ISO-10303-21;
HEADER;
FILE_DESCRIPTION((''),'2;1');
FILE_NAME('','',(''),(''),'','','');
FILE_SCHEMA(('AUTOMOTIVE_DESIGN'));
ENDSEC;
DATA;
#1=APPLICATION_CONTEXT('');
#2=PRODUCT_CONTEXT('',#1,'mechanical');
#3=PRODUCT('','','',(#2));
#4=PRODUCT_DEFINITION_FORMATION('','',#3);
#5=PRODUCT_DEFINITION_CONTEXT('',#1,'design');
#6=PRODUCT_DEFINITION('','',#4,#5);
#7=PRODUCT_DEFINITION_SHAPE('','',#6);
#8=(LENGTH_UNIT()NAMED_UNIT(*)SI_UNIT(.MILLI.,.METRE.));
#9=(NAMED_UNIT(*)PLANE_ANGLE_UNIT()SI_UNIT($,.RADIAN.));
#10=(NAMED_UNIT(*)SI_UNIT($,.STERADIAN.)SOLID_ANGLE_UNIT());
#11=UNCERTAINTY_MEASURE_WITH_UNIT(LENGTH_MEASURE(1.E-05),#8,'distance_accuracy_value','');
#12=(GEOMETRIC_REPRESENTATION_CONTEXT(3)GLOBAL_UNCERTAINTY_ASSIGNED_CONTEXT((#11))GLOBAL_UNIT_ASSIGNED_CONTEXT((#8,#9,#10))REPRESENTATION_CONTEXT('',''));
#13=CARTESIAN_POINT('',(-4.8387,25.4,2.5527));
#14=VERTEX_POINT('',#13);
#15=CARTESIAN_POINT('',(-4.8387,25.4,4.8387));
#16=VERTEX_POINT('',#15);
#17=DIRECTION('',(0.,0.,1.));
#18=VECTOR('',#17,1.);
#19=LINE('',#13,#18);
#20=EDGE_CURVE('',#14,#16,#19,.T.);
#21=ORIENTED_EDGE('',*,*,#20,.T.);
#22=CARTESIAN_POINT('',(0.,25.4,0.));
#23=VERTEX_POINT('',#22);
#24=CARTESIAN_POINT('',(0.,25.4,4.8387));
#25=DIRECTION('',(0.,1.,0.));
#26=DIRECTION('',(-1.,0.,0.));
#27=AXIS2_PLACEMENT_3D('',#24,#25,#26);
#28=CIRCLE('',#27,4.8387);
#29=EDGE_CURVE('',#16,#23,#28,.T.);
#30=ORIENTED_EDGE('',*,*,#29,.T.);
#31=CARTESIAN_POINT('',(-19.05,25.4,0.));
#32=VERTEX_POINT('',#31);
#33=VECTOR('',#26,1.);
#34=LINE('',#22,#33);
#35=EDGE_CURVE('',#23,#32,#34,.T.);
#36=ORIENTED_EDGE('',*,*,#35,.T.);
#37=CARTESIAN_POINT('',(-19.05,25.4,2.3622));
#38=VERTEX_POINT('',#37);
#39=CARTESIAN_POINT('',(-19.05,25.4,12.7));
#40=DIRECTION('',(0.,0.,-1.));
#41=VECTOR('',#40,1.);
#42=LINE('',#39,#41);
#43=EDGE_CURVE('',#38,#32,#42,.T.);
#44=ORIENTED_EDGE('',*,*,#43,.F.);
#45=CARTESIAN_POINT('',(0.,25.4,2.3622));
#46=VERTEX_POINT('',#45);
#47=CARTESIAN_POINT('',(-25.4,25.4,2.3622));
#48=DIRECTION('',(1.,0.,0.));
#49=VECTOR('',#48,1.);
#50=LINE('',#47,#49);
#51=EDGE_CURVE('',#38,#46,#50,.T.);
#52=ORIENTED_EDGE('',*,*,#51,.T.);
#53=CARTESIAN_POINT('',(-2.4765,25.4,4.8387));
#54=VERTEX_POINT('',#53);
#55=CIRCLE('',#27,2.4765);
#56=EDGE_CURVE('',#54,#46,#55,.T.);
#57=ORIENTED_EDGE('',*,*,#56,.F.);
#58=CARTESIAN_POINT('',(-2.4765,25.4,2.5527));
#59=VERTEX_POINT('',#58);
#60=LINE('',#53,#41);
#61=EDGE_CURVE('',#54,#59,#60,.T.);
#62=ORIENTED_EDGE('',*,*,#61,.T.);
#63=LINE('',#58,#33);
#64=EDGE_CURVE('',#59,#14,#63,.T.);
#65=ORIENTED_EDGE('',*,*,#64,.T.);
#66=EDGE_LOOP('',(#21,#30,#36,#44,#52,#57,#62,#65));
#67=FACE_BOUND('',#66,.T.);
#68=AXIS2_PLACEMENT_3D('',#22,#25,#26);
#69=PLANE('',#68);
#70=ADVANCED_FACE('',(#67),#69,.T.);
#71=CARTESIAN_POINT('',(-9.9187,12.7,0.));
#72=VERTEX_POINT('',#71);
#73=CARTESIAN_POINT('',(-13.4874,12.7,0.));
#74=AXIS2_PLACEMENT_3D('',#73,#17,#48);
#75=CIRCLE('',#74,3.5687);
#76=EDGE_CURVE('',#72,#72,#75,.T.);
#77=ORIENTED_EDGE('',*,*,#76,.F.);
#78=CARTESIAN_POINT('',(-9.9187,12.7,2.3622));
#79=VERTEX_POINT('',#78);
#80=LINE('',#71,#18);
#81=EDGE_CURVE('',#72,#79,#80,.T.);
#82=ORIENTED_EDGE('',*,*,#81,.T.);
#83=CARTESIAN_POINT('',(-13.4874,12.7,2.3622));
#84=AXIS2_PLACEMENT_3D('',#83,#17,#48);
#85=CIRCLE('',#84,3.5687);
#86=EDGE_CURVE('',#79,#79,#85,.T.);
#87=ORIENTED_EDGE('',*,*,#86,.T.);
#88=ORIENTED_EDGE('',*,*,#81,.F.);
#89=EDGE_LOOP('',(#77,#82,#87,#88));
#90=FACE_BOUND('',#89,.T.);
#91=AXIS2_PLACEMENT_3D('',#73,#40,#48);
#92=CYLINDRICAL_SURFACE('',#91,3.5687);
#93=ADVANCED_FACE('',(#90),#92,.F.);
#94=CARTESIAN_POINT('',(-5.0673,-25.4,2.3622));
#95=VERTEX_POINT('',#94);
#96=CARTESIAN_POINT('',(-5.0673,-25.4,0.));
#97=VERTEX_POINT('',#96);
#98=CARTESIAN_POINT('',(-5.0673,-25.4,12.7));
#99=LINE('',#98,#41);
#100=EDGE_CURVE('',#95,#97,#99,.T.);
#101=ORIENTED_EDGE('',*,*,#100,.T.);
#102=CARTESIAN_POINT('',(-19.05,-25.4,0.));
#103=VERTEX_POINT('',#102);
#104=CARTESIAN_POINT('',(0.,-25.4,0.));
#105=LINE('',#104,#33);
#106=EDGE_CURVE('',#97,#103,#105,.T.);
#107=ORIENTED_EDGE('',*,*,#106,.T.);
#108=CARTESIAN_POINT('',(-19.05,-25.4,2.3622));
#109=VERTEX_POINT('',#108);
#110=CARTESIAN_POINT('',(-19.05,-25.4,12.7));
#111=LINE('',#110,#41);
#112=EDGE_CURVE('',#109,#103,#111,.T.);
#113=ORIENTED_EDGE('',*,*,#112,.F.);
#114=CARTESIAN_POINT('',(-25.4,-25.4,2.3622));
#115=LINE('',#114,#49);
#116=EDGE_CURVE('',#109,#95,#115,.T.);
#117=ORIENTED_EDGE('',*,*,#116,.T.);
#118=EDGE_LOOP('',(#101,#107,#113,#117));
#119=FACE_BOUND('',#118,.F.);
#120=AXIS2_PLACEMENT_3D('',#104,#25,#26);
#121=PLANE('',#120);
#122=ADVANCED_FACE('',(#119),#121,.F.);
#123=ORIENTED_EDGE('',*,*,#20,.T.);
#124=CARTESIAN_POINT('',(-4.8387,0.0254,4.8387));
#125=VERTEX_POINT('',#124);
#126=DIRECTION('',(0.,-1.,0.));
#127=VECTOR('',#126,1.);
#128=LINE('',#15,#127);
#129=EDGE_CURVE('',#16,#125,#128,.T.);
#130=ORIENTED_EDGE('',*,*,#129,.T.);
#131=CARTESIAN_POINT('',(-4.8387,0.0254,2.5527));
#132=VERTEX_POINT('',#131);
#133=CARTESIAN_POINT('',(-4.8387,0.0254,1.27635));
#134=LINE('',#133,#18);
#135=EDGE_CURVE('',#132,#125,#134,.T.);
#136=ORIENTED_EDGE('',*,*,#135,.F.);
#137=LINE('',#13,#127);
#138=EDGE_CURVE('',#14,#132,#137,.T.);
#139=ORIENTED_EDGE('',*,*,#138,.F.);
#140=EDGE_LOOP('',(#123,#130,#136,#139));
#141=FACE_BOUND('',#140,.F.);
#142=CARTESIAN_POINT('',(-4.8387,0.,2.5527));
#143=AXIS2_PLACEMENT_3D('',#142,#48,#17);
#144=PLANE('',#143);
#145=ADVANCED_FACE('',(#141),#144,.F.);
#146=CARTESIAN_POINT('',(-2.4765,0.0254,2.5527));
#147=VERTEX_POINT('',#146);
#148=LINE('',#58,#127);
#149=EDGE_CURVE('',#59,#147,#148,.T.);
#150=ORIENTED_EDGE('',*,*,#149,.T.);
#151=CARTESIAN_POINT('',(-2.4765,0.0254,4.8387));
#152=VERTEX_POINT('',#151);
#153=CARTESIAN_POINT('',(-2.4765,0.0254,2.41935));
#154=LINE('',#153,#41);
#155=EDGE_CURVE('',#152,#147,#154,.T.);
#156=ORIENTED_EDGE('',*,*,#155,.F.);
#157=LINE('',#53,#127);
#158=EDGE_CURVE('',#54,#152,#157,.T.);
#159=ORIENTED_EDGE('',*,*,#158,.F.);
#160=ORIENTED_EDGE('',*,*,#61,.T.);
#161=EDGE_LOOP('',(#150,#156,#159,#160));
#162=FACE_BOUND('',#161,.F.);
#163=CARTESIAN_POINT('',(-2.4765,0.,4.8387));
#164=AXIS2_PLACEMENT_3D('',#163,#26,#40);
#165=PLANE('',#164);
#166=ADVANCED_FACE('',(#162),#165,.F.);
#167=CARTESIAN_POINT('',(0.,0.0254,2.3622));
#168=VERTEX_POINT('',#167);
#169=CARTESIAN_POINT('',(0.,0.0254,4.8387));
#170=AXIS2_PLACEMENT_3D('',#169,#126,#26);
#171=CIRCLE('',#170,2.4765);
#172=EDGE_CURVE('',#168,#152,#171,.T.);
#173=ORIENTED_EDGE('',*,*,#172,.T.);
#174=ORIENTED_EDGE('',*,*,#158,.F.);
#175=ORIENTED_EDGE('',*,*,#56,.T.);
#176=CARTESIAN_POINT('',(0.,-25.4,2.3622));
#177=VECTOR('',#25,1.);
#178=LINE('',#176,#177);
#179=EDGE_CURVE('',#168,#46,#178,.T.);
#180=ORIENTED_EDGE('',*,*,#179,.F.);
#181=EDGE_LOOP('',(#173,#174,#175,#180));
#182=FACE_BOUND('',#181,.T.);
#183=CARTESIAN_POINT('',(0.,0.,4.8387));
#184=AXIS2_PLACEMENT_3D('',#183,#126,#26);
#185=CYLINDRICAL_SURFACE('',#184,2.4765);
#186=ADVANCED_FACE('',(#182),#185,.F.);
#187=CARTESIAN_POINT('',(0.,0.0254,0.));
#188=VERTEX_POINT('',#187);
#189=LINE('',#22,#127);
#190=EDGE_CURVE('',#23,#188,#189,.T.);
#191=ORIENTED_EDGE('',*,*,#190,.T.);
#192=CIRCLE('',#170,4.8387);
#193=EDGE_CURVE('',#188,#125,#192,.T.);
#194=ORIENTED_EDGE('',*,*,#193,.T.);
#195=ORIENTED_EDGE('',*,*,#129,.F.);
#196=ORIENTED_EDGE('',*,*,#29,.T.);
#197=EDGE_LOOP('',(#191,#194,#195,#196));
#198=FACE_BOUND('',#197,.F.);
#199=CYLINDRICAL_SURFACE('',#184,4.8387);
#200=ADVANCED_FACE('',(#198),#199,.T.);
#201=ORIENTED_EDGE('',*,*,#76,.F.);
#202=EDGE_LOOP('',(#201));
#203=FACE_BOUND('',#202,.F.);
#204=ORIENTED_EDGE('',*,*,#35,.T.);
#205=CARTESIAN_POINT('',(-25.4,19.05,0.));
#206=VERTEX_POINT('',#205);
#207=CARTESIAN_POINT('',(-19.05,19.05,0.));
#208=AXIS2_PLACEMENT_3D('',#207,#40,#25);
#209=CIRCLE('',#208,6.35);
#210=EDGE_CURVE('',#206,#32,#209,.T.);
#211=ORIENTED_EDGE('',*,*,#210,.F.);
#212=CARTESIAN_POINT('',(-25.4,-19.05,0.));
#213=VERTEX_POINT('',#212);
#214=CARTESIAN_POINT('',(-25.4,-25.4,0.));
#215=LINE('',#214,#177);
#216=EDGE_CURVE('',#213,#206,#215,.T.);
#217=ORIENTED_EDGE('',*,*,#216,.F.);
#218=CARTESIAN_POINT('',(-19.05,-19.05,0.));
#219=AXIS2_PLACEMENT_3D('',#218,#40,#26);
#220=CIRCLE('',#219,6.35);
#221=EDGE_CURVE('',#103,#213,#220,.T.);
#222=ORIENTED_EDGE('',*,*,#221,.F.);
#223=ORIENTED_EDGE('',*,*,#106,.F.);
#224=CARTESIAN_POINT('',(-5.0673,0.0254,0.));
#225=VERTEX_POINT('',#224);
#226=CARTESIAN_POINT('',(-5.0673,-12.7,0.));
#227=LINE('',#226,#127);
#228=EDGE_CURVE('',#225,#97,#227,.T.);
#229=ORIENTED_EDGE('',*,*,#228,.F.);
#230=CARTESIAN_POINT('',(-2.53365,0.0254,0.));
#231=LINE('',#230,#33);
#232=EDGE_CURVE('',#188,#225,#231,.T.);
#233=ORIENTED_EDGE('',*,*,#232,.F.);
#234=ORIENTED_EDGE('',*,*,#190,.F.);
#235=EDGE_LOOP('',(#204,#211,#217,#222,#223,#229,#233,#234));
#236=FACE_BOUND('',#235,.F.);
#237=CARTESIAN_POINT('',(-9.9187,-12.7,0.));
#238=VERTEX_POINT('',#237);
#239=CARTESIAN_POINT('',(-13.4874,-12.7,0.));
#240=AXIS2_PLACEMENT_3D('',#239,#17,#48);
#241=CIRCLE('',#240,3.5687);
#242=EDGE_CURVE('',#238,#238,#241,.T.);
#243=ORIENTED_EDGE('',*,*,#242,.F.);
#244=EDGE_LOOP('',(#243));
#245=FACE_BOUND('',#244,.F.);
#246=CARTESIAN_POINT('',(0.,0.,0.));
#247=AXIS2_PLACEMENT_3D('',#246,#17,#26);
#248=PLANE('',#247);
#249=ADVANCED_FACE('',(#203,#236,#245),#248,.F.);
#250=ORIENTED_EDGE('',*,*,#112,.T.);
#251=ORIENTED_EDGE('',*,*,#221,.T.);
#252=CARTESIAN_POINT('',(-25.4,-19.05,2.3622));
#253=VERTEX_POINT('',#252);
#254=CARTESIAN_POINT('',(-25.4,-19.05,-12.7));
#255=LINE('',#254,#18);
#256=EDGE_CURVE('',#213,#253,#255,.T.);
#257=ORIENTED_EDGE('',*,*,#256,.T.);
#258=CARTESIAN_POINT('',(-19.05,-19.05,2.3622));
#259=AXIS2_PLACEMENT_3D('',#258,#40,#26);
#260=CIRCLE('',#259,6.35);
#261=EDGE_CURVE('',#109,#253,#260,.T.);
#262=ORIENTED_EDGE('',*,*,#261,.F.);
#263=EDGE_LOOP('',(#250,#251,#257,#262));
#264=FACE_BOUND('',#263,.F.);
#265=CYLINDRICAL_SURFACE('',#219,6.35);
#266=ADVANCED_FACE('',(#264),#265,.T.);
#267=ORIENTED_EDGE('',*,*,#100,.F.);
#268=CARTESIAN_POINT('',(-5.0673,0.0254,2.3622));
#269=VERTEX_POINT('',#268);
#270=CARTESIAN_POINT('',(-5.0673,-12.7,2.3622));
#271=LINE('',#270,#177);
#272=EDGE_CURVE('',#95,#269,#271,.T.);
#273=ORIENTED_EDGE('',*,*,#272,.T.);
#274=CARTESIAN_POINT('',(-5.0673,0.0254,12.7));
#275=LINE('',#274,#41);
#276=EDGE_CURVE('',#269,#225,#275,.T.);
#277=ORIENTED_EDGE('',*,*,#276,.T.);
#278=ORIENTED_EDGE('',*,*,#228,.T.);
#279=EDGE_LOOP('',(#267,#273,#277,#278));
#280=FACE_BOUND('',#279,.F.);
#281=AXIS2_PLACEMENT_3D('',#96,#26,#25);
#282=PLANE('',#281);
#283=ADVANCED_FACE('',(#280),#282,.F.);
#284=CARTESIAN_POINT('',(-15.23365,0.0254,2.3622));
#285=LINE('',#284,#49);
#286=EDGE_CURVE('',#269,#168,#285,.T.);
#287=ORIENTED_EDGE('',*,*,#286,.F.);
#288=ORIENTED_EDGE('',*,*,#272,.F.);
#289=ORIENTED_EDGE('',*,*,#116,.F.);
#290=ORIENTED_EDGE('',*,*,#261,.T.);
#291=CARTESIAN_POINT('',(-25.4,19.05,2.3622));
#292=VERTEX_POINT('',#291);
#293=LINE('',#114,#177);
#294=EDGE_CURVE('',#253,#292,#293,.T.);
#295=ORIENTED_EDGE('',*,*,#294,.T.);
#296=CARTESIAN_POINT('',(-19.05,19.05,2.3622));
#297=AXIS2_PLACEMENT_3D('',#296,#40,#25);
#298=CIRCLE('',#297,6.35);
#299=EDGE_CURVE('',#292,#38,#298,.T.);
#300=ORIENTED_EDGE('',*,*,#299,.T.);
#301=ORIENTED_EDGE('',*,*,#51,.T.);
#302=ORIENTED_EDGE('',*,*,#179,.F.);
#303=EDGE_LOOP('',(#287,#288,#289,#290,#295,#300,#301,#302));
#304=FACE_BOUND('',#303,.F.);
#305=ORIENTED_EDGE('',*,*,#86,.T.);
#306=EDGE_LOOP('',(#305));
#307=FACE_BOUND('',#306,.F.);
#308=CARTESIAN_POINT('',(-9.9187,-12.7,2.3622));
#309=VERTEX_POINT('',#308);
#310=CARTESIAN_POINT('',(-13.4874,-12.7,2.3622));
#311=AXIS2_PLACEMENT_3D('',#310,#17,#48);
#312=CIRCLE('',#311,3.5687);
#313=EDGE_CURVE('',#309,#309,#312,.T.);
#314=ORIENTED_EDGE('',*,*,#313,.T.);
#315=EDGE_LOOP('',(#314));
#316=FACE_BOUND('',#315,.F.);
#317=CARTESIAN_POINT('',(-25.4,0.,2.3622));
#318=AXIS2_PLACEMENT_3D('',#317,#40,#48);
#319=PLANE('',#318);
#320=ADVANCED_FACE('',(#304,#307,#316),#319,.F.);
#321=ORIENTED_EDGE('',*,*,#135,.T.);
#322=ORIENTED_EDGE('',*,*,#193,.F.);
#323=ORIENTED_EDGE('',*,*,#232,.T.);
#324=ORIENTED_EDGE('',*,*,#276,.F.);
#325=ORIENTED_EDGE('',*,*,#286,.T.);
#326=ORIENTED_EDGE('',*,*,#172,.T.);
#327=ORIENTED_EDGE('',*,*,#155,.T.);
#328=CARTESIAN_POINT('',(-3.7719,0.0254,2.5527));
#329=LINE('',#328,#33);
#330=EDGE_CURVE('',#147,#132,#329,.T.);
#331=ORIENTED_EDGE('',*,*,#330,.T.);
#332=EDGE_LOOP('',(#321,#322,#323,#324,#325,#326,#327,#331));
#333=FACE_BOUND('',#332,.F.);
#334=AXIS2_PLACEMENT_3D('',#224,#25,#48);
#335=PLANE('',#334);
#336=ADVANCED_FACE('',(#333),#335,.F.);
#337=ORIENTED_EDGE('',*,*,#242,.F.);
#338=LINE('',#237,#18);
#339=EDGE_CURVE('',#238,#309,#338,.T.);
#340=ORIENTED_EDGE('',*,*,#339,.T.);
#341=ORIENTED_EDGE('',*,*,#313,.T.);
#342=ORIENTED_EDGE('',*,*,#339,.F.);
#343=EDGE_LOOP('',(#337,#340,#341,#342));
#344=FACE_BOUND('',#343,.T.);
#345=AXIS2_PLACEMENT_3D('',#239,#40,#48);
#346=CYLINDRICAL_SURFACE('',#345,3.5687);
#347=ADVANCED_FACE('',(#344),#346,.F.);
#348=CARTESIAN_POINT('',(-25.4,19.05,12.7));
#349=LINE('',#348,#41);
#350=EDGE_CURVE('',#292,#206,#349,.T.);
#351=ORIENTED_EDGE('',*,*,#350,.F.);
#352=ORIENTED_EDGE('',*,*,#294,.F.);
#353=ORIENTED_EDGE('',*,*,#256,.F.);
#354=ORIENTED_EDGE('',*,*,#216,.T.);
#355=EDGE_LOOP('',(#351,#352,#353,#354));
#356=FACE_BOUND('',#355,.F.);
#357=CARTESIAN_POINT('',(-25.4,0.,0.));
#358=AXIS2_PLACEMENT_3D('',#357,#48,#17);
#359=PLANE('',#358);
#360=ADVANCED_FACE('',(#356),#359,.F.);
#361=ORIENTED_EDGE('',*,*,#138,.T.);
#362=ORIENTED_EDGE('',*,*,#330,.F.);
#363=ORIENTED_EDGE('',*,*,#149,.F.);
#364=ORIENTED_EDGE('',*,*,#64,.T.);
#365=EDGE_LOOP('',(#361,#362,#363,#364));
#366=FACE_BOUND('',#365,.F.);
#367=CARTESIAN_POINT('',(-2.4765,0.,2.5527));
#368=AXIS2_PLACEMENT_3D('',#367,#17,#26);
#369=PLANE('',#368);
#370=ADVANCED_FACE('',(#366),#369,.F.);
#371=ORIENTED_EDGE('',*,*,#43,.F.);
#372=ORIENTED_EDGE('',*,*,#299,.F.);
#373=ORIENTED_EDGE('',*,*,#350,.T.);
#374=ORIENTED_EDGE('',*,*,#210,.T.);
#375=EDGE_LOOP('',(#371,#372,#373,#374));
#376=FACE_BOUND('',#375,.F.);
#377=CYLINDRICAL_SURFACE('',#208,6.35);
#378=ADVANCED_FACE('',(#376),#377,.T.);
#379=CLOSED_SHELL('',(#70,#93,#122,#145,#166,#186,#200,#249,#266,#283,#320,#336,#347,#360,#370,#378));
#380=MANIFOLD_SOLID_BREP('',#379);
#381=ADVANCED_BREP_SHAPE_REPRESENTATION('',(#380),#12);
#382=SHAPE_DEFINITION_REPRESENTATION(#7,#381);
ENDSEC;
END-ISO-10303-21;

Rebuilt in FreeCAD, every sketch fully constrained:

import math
import FreeCAD as App
import Part
import Sketcher
Q = App.Units.Quantity

doc = App.newDocument("Part")
body = doc.addObject("PartDesign::Body", "Body")

sketch1 = doc.addObject("Sketcher::SketchObject", "Sketch")
body.addObject(sketch1)
sketch1.AttachmentSupport = (doc.XZ_Plane, [""])
sketch1.MapMode = "FlatFace"
sketch1.addGeometry([
    Part.LineSegment(App.Vector(0, 0, 0), App.Vector(-25.4, 0, 0)),
    Part.LineSegment(App.Vector(-25.4, 0, 0), App.Vector(-25.4, 2.4, 0)),
    Part.LineSegment(App.Vector(-25.4, 2.4, 0), App.Vector(0, 2.4, 0)),
    Part.ArcOfCircle(Part.Circle(App.Vector(0, 4.8, 0), App.Vector(0, 0, 1), 2.5), math.radians(-90), math.radians(180)),
    Part.LineSegment(App.Vector(-2.5, 4.8, 0), App.Vector(-2.5, 2.6, 0)),
    Part.LineSegment(App.Vector(-2.5, 2.6, 0), App.Vector(-4.8, 2.6, 0)),
    Part.LineSegment(App.Vector(-4.8, 2.6, 0), App.Vector(-4.8, 4.8, 0)),
    Part.ArcOfCircle(Part.Circle(App.Vector(0, 4.8, 0), App.Vector(0, 0, 1), 4.8), math.radians(-90), math.radians(180)),
], False)
sketch1.addConstraint([
    Sketcher.Constraint("Coincident", 0, 2, 1, 1),
    Sketcher.Constraint("Coincident", 1, 2, 2, 1),
    Sketcher.Constraint("Tangent", 2, 2, 3, 1),
    Sketcher.Constraint("Tangent", 3, 2, 4, 1),
    Sketcher.Constraint("Coincident", 4, 2, 5, 1),
    Sketcher.Constraint("Coincident", 5, 2, 6, 1),
    Sketcher.Constraint("Tangent", 6, 2, 7, 2),
    Sketcher.Constraint("Tangent", 7, 1, 0, 1),
    Sketcher.Constraint("Horizontal", 0),
    Sketcher.Constraint("Vertical", 1),
    Sketcher.Constraint("Horizontal", 2),
    Sketcher.Constraint("Vertical", 4),
    Sketcher.Constraint("Horizontal", 5),
    Sketcher.Constraint("Vertical", 6),
    Sketcher.Constraint("Coincident", 7, 1, -1, 1),
    Sketcher.Constraint("Coincident", 7, 3, 3, 3),
    Sketcher.Constraint("DistanceX", 0, 2, 0, 1, Q("1 in")),
    Sketcher.Constraint("DistanceY", 4, 2, 4, 1, Q("0.09 in")),
    Sketcher.Constraint("Radius", 3, Q("0.0975 in")),
    Sketcher.Constraint("Radius", 7, Q("0.1905 in")),
])
pad1 = doc.addObject("PartDesign::Pad", "Pad")
body.addObject(pad1)
pad1.Profile = sketch1
pad1.Length = Q("2 in")
pad1.Midplane = True

sketch2 = doc.addObject("Sketcher::SketchObject", "Sketch001")
body.addObject(sketch2)
sketch2.AttachmentSupport = (doc.XY_Plane, [""])
sketch2.MapMode = "FlatFace"
sketch2.addGeometry([
    Part.LineSegment(App.Vector(25, 51, 0), App.Vector(-51, 51, 0)),
    Part.LineSegment(App.Vector(-51, 51, 0), App.Vector(-51, -51, 0)),
    Part.LineSegment(App.Vector(-51, -51, 0), App.Vector(25, -51, 0)),
    Part.LineSegment(App.Vector(25, -51, 0), App.Vector(25, 51, 0)),
    Part.ArcOfCircle(Part.Circle(App.Vector(-19, -19, 0), App.Vector(0, 0, 1), 6), math.radians(180), math.radians(270)),
    Part.LineSegment(App.Vector(-25, -19, 0), App.Vector(-25, 19, 0)),
    Part.ArcOfCircle(Part.Circle(App.Vector(-19, 19, 0), App.Vector(0, 0, 1), 6), math.radians(90), math.radians(180)),
    Part.LineSegment(App.Vector(-19, 25, 0), App.Vector(13, 25, 0)),
    Part.LineSegment(App.Vector(13, 25, 0), App.Vector(13, 0, 0)),
    Part.LineSegment(App.Vector(13, 0, 0), App.Vector(-5, 0, 0)),
    Part.LineSegment(App.Vector(-5, 0, 0), App.Vector(-5, -25, 0)),
    Part.LineSegment(App.Vector(-5, -25, 0), App.Vector(-19, -25, 0)),
], False)
sketch2.addConstraint([
    Sketcher.Constraint("Coincident", 0, 2, 1, 1),
    Sketcher.Constraint("Coincident", 1, 2, 2, 1),
    Sketcher.Constraint("Coincident", 2, 2, 3, 1),
    Sketcher.Constraint("Coincident", 3, 2, 0, 1),
    Sketcher.Constraint("Tangent", 4, 1, 5, 1),
    Sketcher.Constraint("Tangent", 5, 2, 6, 2),
    Sketcher.Constraint("Tangent", 6, 1, 7, 1),
    Sketcher.Constraint("Coincident", 7, 2, 8, 1),
    Sketcher.Constraint("Coincident", 8, 2, 9, 1),
    Sketcher.Constraint("Coincident", 9, 2, 10, 1),
    Sketcher.Constraint("Coincident", 10, 2, 11, 1),
    Sketcher.Constraint("Tangent", 11, 2, 4, 2),
    Sketcher.Constraint("Horizontal", 0),
    Sketcher.Constraint("Vertical", 1),
    Sketcher.Constraint("Horizontal", 2),
    Sketcher.Constraint("Vertical", 3),
    Sketcher.Constraint("Vertical", 5),
    Sketcher.Constraint("Horizontal", 7),
    Sketcher.Constraint("Vertical", 8),
    Sketcher.Constraint("Horizontal", 9),
    Sketcher.Constraint("Vertical", 10),
    Sketcher.Constraint("Horizontal", 11),
    Sketcher.Constraint("Equal", 4, 6),
    Sketcher.Constraint("DistanceX", 0, 2, 0, 1, Q("3 in")),
    Sketcher.Constraint("DistanceY", 1, 2, 1, 1, Q("4 in")),
    Sketcher.Constraint("Radius", 4, Q("0.25 in")),
    Sketcher.Constraint("DistanceY", 5, 1, 5, 2, Q("1.5 in")),
    Sketcher.Constraint("DistanceX", 0, 2, -1, 1, Q("2 in")),
    Sketcher.Constraint("DistanceY", -1, 1, 0, 2, Q("2 in")),
    Sketcher.Constraint("DistanceX", 4, 1, -1, 1, Q("1 in")),
    Sketcher.Constraint("DistanceY", -1, 1, 6, 1, Q("1 in")),
    Sketcher.Constraint("DistanceX", 7, 1, 7, 2, Q("1.25 in")),
    Sketcher.Constraint("DistanceY", 8, 2, 8, 1, Q("0.999 in")),
    Sketcher.Constraint("DistanceX", 9, 2, 9, 1, Q("0.6995 in")),
])
pocket1 = doc.addObject("PartDesign::Pocket", "Pocket")
body.addObject(pocket1)
pocket1.Profile = sketch2
pocket1.Length = Q("1 in")
pocket1.Midplane = True

sketch3 = doc.addObject("Sketcher::SketchObject", "Sketch002")
body.addObject(sketch3)
sketch3.AttachmentSupport = (doc.XY_Plane, [""])
sketch3.MapMode = "FlatFace"
sketch3.addGeometry(Part.Circle(App.Vector(-13.5, 12.7, 0), App.Vector(0, 0, 1), 3.6), False)
sketch3.addConstraint([
    Sketcher.Constraint("Diameter", 0, Q("0.281 in")),
    Sketcher.Constraint("DistanceY", -1, 1, 0, 3, Q("0.5 in")),
    Sketcher.Constraint("DistanceX", 0, 3, -1, 1, Q("0.531 in")),
])
pocket2 = doc.addObject("PartDesign::Pocket", "Pocket001")
body.addObject(pocket2)
pocket2.Profile = sketch3
pocket2.Length = Q("0.186 in")
pocket2.Midplane = True

sketch4 = doc.addObject("Sketcher::SketchObject", "Sketch003")
body.addObject(sketch4)
sketch4.AttachmentSupport = (doc.XY_Plane, [""])
sketch4.MapMode = "FlatFace"
sketch4.addGeometry(Part.Circle(App.Vector(-13.5, -12.7, 0), App.Vector(0, 0, 1), 3.6), False)
sketch4.addConstraint([
    Sketcher.Constraint("Diameter", 0, Q("0.281 in")),
    Sketcher.Constraint("DistanceY", 0, 3, -1, 1, Q("0.5 in")),
    Sketcher.Constraint("DistanceX", 0, 3, -1, 1, Q("0.531 in")),
])
pocket3 = doc.addObject("PartDesign::Pocket", "Pocket002")
body.addObject(pocket3)
pocket3.Profile = sketch4
pocket3.Length = Q("0.186 in")
pocket3.Midplane = True

doc.recompute()
